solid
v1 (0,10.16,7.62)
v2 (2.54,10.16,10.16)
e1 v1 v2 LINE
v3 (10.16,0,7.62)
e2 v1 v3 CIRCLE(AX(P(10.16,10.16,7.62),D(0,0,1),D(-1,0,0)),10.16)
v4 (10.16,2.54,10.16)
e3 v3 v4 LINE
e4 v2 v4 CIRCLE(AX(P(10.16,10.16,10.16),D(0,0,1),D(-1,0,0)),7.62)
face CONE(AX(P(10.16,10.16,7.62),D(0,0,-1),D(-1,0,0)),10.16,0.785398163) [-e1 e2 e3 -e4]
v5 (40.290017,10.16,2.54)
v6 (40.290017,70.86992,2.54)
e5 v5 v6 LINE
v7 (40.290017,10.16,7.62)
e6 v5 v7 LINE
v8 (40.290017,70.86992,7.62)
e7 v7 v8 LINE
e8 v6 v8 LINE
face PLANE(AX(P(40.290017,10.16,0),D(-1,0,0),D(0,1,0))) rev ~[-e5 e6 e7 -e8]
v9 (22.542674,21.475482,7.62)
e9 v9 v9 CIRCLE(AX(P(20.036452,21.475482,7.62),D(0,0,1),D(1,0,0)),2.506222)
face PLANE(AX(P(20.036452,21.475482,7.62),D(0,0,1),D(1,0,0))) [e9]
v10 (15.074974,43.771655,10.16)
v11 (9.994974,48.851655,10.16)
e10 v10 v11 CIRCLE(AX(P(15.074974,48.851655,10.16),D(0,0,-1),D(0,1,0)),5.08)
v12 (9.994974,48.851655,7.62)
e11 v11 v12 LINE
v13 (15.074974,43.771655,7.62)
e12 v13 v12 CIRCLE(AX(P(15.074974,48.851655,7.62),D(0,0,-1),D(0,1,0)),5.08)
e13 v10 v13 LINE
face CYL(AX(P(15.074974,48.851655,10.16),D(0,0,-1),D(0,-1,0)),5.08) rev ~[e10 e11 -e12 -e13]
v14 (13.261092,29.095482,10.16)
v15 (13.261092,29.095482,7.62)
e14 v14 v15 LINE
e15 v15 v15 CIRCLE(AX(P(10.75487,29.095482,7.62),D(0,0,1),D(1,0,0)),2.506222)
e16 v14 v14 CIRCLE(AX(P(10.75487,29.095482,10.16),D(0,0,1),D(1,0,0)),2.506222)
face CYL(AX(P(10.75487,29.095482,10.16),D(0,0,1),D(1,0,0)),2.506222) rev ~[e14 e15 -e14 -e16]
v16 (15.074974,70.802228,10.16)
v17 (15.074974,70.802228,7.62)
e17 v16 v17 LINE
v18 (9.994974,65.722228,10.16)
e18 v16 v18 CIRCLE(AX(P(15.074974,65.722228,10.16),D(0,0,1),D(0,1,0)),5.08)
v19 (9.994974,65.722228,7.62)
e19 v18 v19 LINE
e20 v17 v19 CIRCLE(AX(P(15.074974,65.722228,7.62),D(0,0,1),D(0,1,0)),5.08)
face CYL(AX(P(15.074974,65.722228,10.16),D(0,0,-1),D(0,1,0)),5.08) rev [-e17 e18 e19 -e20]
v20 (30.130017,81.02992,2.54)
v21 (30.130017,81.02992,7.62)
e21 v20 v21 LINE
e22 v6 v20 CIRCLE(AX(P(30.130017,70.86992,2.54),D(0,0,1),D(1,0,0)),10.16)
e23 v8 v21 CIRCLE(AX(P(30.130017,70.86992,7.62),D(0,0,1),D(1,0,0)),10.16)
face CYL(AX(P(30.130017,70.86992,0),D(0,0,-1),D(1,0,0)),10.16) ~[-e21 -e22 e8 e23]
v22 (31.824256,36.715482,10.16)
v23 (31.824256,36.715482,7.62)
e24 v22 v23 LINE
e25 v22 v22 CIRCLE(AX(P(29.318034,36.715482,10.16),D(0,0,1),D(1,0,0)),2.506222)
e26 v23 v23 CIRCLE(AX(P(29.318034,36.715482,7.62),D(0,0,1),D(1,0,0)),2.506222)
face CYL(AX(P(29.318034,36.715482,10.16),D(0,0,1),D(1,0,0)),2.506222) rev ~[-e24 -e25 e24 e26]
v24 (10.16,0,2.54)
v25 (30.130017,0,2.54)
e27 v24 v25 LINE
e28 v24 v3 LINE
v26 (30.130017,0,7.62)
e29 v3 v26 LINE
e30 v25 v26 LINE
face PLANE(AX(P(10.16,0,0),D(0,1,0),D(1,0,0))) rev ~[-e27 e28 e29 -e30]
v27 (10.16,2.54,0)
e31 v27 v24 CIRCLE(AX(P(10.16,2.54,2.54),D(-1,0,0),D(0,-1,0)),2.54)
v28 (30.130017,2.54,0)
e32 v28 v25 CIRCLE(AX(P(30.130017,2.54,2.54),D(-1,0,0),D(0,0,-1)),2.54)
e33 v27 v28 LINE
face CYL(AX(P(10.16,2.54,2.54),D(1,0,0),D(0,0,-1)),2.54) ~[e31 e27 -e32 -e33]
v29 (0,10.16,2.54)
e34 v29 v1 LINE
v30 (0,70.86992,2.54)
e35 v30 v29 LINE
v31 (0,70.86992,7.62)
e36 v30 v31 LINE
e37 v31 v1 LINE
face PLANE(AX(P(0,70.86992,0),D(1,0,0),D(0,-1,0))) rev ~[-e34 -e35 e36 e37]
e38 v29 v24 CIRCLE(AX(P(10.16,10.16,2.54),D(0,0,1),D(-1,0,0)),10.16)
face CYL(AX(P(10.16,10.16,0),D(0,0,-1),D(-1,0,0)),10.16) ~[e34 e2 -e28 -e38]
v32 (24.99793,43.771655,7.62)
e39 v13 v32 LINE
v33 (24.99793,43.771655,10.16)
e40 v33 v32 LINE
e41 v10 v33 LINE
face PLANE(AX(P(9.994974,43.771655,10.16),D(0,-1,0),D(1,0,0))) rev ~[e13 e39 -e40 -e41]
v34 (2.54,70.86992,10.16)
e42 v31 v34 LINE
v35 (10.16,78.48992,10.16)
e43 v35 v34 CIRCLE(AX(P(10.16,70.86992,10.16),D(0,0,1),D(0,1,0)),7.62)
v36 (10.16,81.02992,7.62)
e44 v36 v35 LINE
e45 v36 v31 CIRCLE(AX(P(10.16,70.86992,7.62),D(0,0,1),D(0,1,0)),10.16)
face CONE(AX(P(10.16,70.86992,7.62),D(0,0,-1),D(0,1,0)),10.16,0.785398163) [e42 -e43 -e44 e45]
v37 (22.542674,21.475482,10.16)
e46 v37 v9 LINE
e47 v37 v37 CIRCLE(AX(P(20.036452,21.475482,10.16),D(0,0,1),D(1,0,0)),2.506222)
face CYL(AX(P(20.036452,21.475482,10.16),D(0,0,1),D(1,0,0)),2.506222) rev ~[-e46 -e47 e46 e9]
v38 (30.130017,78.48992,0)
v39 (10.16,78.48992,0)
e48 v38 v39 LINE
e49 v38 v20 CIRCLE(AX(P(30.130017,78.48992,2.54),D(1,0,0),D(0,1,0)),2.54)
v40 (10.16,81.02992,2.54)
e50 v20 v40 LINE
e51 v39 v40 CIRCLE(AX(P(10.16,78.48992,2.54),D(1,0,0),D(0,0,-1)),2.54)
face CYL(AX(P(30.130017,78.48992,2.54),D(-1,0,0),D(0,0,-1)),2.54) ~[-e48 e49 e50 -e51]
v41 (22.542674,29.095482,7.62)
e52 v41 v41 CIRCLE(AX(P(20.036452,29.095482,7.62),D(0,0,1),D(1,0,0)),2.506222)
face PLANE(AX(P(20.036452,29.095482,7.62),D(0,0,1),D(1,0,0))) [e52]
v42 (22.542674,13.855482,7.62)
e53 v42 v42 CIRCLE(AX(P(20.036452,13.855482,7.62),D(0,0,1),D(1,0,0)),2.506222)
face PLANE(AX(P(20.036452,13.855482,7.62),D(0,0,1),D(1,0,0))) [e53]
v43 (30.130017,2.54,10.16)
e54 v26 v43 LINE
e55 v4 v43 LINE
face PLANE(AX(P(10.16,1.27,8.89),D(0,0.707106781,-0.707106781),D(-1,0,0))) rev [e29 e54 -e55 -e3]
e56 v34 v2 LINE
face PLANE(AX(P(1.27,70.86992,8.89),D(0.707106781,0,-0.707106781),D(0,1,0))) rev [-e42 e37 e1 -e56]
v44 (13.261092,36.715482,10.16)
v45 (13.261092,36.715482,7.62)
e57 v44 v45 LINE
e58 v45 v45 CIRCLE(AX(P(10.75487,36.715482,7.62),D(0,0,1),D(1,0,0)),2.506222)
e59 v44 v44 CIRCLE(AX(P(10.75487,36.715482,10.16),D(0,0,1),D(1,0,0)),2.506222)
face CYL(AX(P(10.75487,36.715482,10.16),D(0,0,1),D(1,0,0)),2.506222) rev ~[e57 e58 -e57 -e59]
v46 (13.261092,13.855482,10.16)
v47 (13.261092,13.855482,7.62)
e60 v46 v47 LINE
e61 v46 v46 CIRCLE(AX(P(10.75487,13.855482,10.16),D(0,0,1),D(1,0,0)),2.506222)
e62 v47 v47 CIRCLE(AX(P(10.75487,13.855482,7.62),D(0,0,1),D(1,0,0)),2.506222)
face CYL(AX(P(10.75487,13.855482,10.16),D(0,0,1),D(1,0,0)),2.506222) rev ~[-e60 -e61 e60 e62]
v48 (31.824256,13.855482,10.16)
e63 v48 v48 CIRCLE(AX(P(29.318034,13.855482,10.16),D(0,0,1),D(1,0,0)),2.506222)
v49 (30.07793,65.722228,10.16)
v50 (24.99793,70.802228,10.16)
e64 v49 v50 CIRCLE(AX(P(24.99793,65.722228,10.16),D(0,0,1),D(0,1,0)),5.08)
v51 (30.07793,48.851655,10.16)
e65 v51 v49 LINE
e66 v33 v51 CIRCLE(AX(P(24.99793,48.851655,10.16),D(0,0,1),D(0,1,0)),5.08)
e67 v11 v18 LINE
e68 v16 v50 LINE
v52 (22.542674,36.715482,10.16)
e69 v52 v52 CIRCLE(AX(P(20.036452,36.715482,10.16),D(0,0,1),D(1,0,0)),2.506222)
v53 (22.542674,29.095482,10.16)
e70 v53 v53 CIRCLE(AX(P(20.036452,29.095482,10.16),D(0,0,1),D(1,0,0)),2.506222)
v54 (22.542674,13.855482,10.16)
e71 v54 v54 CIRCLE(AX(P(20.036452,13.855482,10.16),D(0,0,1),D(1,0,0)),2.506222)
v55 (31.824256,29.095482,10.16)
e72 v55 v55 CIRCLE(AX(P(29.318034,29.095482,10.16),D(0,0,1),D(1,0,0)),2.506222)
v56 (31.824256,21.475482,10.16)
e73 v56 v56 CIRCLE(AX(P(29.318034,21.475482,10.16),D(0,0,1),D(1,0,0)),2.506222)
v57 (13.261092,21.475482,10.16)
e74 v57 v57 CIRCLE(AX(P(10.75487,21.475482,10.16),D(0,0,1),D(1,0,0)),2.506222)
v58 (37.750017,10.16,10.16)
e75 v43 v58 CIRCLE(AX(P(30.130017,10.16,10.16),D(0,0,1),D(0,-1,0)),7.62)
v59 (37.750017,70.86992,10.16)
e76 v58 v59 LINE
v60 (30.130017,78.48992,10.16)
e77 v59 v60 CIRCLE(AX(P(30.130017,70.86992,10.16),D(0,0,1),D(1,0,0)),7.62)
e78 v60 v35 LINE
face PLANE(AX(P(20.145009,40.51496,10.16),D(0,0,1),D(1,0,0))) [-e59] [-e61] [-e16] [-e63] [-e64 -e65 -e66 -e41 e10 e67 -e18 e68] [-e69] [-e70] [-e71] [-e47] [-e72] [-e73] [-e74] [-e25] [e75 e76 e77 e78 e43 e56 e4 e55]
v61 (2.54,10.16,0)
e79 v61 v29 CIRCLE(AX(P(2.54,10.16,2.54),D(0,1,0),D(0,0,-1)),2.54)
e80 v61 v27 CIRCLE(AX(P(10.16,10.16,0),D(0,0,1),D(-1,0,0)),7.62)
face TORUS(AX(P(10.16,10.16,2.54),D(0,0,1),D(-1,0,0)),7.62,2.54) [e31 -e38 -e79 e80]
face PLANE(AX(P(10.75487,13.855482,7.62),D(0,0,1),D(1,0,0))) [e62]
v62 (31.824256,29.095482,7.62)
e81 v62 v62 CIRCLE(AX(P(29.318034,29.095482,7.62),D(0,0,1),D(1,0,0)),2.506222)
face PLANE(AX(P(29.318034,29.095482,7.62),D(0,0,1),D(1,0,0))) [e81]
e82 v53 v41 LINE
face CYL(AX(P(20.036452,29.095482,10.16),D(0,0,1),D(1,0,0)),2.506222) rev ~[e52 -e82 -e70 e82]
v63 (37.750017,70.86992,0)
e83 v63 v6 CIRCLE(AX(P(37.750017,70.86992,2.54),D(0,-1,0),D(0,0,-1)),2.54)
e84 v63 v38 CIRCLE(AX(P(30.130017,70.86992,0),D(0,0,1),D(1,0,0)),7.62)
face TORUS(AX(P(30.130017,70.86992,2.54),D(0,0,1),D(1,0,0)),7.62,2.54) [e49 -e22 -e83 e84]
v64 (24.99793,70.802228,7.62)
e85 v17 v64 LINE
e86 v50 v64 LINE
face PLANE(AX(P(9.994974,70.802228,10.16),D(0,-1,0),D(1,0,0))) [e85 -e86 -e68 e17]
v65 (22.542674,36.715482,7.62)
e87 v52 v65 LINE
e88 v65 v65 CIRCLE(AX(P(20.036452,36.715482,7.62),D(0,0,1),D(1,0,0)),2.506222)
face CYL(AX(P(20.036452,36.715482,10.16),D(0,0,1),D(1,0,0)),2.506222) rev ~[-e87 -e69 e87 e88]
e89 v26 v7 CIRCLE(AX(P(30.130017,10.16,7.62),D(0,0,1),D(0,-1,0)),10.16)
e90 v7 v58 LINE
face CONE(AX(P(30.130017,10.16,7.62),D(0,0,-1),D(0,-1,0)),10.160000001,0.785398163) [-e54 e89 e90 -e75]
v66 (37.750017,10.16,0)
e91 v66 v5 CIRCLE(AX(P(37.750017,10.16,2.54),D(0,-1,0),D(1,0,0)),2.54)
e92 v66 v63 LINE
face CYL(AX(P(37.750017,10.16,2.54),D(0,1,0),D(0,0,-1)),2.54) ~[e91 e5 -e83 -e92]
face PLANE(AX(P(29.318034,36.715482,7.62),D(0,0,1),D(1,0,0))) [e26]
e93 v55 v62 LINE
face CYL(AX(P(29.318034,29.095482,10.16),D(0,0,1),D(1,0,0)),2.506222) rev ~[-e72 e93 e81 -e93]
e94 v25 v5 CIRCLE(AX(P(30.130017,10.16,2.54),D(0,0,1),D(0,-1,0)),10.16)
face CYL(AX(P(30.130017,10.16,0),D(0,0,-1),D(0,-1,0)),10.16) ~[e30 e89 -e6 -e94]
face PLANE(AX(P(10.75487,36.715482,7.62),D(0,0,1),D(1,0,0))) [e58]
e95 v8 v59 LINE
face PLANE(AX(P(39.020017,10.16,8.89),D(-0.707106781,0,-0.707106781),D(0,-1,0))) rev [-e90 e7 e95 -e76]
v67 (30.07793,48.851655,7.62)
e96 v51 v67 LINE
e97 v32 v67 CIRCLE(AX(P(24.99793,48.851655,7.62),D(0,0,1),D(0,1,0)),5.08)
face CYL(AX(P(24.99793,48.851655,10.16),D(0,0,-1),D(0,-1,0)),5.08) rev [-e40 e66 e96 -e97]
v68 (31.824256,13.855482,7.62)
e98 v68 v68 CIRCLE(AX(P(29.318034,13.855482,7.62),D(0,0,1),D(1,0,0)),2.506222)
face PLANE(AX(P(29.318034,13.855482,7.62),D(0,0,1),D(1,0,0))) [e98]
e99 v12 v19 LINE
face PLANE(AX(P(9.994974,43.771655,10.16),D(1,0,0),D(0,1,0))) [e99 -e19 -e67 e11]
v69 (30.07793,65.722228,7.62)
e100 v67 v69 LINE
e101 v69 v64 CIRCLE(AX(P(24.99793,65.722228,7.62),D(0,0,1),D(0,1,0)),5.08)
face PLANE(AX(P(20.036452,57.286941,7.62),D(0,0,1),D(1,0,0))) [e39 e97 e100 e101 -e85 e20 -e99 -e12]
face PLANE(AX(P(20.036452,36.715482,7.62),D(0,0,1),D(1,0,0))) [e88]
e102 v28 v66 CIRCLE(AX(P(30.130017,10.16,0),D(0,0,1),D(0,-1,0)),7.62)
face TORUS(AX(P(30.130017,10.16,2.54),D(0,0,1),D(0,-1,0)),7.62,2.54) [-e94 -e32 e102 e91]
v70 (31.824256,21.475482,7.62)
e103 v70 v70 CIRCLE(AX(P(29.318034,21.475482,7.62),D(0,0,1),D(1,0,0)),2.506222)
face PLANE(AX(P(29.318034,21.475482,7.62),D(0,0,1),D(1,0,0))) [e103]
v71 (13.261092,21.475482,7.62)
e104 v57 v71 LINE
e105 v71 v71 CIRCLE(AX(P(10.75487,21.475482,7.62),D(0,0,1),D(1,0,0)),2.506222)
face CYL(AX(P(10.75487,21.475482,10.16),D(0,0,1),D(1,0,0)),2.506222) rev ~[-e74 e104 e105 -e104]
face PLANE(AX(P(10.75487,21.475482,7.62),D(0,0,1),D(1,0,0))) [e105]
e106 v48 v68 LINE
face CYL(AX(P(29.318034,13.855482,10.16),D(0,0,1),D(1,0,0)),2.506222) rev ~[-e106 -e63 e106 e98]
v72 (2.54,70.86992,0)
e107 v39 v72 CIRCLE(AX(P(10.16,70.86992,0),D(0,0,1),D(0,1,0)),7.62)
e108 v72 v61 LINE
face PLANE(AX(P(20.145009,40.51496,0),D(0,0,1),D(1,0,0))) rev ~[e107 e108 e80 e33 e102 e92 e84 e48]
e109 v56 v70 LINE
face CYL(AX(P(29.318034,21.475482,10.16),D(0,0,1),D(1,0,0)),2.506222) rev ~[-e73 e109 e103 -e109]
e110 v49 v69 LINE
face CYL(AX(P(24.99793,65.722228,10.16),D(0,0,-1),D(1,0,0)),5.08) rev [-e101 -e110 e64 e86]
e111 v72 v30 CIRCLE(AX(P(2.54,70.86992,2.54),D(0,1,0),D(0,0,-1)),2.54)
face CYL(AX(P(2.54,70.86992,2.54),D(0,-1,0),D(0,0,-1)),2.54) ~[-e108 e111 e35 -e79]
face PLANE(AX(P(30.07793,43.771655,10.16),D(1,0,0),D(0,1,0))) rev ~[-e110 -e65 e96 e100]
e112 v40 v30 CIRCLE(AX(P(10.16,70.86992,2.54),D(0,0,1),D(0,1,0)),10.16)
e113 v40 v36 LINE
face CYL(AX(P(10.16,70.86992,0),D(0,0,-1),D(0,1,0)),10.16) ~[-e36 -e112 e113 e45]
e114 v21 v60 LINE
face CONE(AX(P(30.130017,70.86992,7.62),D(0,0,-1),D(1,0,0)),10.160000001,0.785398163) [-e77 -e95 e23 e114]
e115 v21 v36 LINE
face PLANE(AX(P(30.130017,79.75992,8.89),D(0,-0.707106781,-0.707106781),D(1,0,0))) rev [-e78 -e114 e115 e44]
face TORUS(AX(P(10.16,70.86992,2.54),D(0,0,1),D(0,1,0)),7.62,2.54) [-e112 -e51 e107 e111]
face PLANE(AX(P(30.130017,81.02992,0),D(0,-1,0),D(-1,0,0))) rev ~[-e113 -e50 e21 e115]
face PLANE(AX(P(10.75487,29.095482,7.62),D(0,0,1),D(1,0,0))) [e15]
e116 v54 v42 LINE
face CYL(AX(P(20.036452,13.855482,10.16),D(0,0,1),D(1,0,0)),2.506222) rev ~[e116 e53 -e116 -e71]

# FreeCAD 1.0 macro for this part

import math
import FreeCAD as App
import Part
import Sketcher
Q = App.Units.Quantity


def edges_at(feature, points):
    """Names of the edges that pass closest to the given points."""
    edges = feature.Shape.Edges
    near = lambda p: min(range(len(edges)), key=lambda i: edges[i].distToShape(Part.Vertex(*p))[0])
    return sorted({f"Edge{near(p) + 1}" for p in points})


def add_polygon(sketch, points):
    """Adds a closed chain of lines whose ends are joined by coincident constraints."""
    first, n = sketch.GeometryCount, len(points)
    for a, b in zip(points, points[1:] + points[:1]):
        sketch.addGeometry(Part.LineSegment(App.Vector(*a, 0), App.Vector(*b, 0)), False)
    for i in range(n):
        sketch.addConstraint(Sketcher.Constraint("Coincident", first + i, 2, first + (i + 1) % n, 1))

doc = App.newDocument("Part")
body = doc.addObject("PartDesign::Body", "Body")

sketch1 = body.newObject("Sketcher::SketchObject", "Sketch")
sketch1.AttachmentSupport = (doc.getObject("XY_Plane"), [""])
sketch1.MapMode = "FlatFace"
sketch1.addGeometry(Part.LineSegment(App.Vector(10.16, 0, 0), App.Vector(30.130017, 0, 0)), False)
sketch1.addGeometry(Part.ArcOfCircle(Part.Circle(App.Vector(30.130017, 10.16, 0), App.Vector(0, 0, 1), 10.16), math.radians(-90), math.radians(0)), False)
sketch1.addGeometry(Part.LineSegment(App.Vector(40.290017, 10.16, 0), App.Vector(40.290017, 70.86992, 0)), False)
sketch1.addGeometry(Part.ArcOfCircle(Part.Circle(App.Vector(30.130017, 70.86992, 0), App.Vector(0, 0, 1), 10.16), math.radians(0), math.radians(90)), False)
sketch1.addGeometry(Part.LineSegment(App.Vector(30.130017, 81.02992, 0), App.Vector(10.16, 81.02992, 0)), False)
sketch1.addGeometry(Part.ArcOfCircle(Part.Circle(App.Vector(10.16, 70.86992, 0), App.Vector(0, 0, 1), 10.16), math.radians(90), math.radians(180)), False)
sketch1.addGeometry(Part.LineSegment(App.Vector(0, 70.86992, 0), App.Vector(0, 10.16, 0)), False)
sketch1.addGeometry(Part.ArcOfCircle(Part.Circle(App.Vector(10.16, 10.16, 0), App.Vector(0, 0, 1), 10.16), math.radians(180), math.radians(270)), False)
sketch1.addConstraint(Sketcher.Constraint("Tangent", 0, 2, 1, 1))
sketch1.addConstraint(Sketcher.Constraint("Tangent", 1, 2, 2, 1))
sketch1.addConstraint(Sketcher.Constraint("Tangent", 2, 2, 3, 1))
sketch1.addConstraint(Sketcher.Constraint("Tangent", 3, 2, 4, 1))
sketch1.addConstraint(Sketcher.Constraint("Tangent", 4, 2, 5, 1))
sketch1.addConstraint(Sketcher.Constraint("Tangent", 5, 2, 6, 1))
sketch1.addConstraint(Sketcher.Constraint("Tangent", 6, 2, 7, 1))
sketch1.addConstraint(Sketcher.Constraint("Tangent", 7, 2, 0, 1))
sketch1.addConstraint(Sketcher.Constraint("Horizontal", 0))
sketch1.addConstraint(Sketcher.Constraint("Vertical", 2))
sketch1.addConstraint(Sketcher.Constraint("Horizontal", 4))
sketch1.addConstraint(Sketcher.Constraint("Vertical", 6))
sketch1.addConstraint(Sketcher.Constraint("Equal", 1, 3))
sketch1.addConstraint(Sketcher.Constraint("Equal", 3, 5))
sketch1.addConstraint(Sketcher.Constraint("Equal", 5, 7))
sketch1.addConstraint(Sketcher.Constraint("PointOnObject", 0, 2, -1))
sketch1.addConstraint(Sketcher.Constraint("PointOnObject", 5, 2, -2))
sketch1.addConstraint(Sketcher.Constraint("Radius", 1, Q("0.4 in")))
sketch1.addConstraint(Sketcher.Constraint("DistanceY", 2, 1, 2, 2, 60.70992))
sketch1.addConstraint(Sketcher.Constraint("DistanceX", 0, 1, 0, 2, 19.970017))
pad1 = body.newObject("PartDesign::Pad", "Pad")
pad1.Profile = sketch1
pad1.Length = Q("0.4 in")
doc.recompute()

chamfer = body.newObject("PartDesign::Chamfer", "Chamfer")
chamfer.Base = (pad1, edges_at(pad1, [
    (2.976, 2.976, 10.16),
    (20.145, 0, 10.16),
    (37.314, 2.976, 10.16),
    (40.29, 40.515, 10.16),
    (37.314, 78.054, 10.16),
    (20.145, 81.03, 10.16),
    (2.976, 78.054, 10.16),
    (0, 40.515, 10.16),
]))
chamfer.Size = Q("0.1 in")
doc.recompute()

fillet = body.newObject("PartDesign::Fillet", "Fillet")
fillet.Base = (chamfer, edges_at(chamfer, [
    (0, 40.515, 0),
    (2.976, 78.054, 0),
    (20.145, 81.03, 0),
    (37.314, 78.054, 0),
    (40.29, 40.515, 0),
    (37.314, 2.976, 0),
    (20.145, 0, 0),
    (2.976, 2.976, 0),
]))
fillet.Radius = Q("0.1 in")

sketch2 = body.newObject("Sketcher::SketchObject", "Sketch001")
sketch2.AttachmentSupport = (doc.getObject("XY_Plane"), [""])
sketch2.MapMode = "FlatFace"
sketch2.AttachmentOffset = App.Placement(App.Vector(0, 0, 0.4 * 25.4), App.Rotation())
sketch2.addGeometry(Part.Circle(App.Vector(10.75487, 36.715482, 0), App.Vector(0, 0, 1), 2.506222), False)
sketch2.addGeometry(Part.Circle(App.Vector(20.036452, 36.715482, 0), App.Vector(0, 0, 1), 2.506222), False)
sketch2.addGeometry(Part.Circle(App.Vector(29.318034, 36.715482, 0), App.Vector(0, 0, 1), 2.506222), False)
sketch2.addGeometry(Part.Circle(App.Vector(10.75487, 29.095482, 0), App.Vector(0, 0, 1), 2.506222), False)
sketch2.addGeometry(Part.Circle(App.Vector(20.036452, 29.095482, 0), App.Vector(0, 0, 1), 2.506222), False)
sketch2.addGeometry(Part.Circle(App.Vector(29.318034, 29.095482, 0), App.Vector(0, 0, 1), 2.506222), False)
sketch2.addGeometry(Part.Circle(App.Vector(10.75487, 21.475482, 0), App.Vector(0, 0, 1), 2.506222), False)
sketch2.addGeometry(Part.Circle(App.Vector(20.036452, 21.475482, 0), App.Vector(0, 0, 1), 2.506222), False)
sketch2.addGeometry(Part.Circle(App.Vector(29.318034, 21.475482, 0), App.Vector(0, 0, 1), 2.506222), False)
sketch2.addGeometry(Part.Circle(App.Vector(10.75487, 13.855482, 0), App.Vector(0, 0, 1), 2.506222), False)
sketch2.addGeometry(Part.Circle(App.Vector(20.036452, 13.855482, 0), App.Vector(0, 0, 1), 2.506222), False)
sketch2.addGeometry(Part.Circle(App.Vector(29.318034, 13.855482, 0), App.Vector(0, 0, 1), 2.506222), False)
add_polygon(sketch2, [(9.994974, 70.802228), (9.994974, 43.771655), (30.07793, 43.771655), (30.07793, 70.802228)])
sketch2.addConstraint(Sketcher.Constraint("Vertical", 12))
sketch2.addConstraint(Sketcher.Constraint("Horizontal", 13))
sketch2.addConstraint(Sketcher.Constraint("Vertical", 14))
sketch2.addConstraint(Sketcher.Constraint("Horizontal", 15))
sketch2.addConstraint(Sketcher.Constraint("Equal", 0, 1))
sketch2.addConstraint(Sketcher.Constraint("Equal", 1, 2))
sketch2.addConstraint(Sketcher.Constraint("Equal", 2, 3))
sketch2.addConstraint(Sketcher.Constraint("Equal", 3, 4))
sketch2.addConstraint(Sketcher.Constraint("Equal", 4, 5))
sketch2.addConstraint(Sketcher.Constraint("Equal", 5, 6))
sketch2.addConstraint(Sketcher.Constraint("Equal", 6, 7))
sketch2.addConstraint(Sketcher.Constraint("Equal", 7, 8))
sketch2.addConstraint(Sketcher.Constraint("Equal", 8, 9))
sketch2.addConstraint(Sketcher.Constraint("Equal", 9, 10))
sketch2.addConstraint(Sketcher.Constraint("Equal", 10, 11))
sketch2.addConstraint(Sketcher.Constraint("Horizontal", 0, 3, 1, 3))
sketch2.addConstraint(Sketcher.Constraint("Horizontal", 1, 3, 2, 3))
sketch2.addConstraint(Sketcher.Constraint("Horizontal", 3, 3, 4, 3))
sketch2.addConstraint(Sketcher.Constraint("Horizontal", 4, 3, 5, 3))
sketch2.addConstraint(Sketcher.Constraint("Horizontal", 6, 3, 7, 3))
sketch2.addConstraint(Sketcher.Constraint("Horizontal", 7, 3, 8, 3))
sketch2.addConstraint(Sketcher.Constraint("Horizontal", 9, 3, 10, 3))
sketch2.addConstraint(Sketcher.Constraint("Horizontal", 10, 3, 11, 3))
sketch2.addConstraint(Sketcher.Constraint("Vertical", 0, 3, 3, 3))
sketch2.addConstraint(Sketcher.Constraint("Vertical", 1, 3, 4, 3))
sketch2.addConstraint(Sketcher.Constraint("Vertical", 2, 3, 5, 3))
sketch2.addConstraint(Sketcher.Constraint("Vertical", 3, 3, 6, 3))
sketch2.addConstraint(Sketcher.Constraint("Vertical", 4, 3, 7, 3))
sketch2.addConstraint(Sketcher.Constraint("Vertical", 5, 3, 8, 3))
sketch2.addConstraint(Sketcher.Constraint("Vertical", 6, 3, 9, 3))
sketch2.addConstraint(Sketcher.Constraint("Vertical", 7, 3, 10, 3))
sketch2.addConstraint(Sketcher.Constraint("Vertical", 8, 3, 11, 3))
sketch2.addConstraint(Sketcher.Constraint("DistanceY", 3, 3, 0, 3, Q("0.3 in")))
sketch2.addConstraint(Sketcher.Constraint("DistanceY", 6, 3, 3, 3, Q("0.3 in")))
sketch2.addConstraint(Sketcher.Constraint("DistanceY", 9, 3, 6, 3, Q("0.3 in")))
sketch2.addConstraint(Sketcher.Constraint("Diameter", 0, 5.012444))
sketch2.addConstraint(Sketcher.Constraint("DistanceX", 13, 1, 13, 2, 20.082955))
sketch2.addConstraint(Sketcher.Constraint("DistanceY", 12, 2, 12, 1, 27.030572))
sketch2.addConstraint(Sketcher.Constraint("DistanceX", -1, 1, 0, 3, 10.75487))
sketch2.addConstraint(Sketcher.Constraint("DistanceY", -1, 1, 0, 3, 36.715482))
sketch2.addConstraint(Sketcher.Constraint("DistanceX", -1, 1, 13, 2, 30.07793))
sketch2.addConstraint(Sketcher.Constraint("DistanceX", 12, 2, 2, 3, 19.32306))
sketch2.addConstraint(Sketcher.Constraint("DistanceX", -1, 1, 1, 3, 20.036452))
sketch2.addConstraint(Sketcher.Constraint("DistanceY", -1, 1, 12, 2, 43.771655))
pocket1 = body.newObject("PartDesign::Pocket", "Pocket")
pocket1.Profile = sketch2
pocket1.Length = Q("0.1 in")
doc.recompute()

fillet2 = body.newObject("PartDesign::Fillet", "Fillet001")
fillet2.Base = (pocket1, edges_at(pocket1, [
    (9.995, 43.772, 8.89),
    (9.995, 70.802, 8.89),
    (30.078, 70.802, 8.89),
    (30.078, 43.772, 8.89),
]))
fillet2.Radius = Q("0.2 in")

doc.recompute()
